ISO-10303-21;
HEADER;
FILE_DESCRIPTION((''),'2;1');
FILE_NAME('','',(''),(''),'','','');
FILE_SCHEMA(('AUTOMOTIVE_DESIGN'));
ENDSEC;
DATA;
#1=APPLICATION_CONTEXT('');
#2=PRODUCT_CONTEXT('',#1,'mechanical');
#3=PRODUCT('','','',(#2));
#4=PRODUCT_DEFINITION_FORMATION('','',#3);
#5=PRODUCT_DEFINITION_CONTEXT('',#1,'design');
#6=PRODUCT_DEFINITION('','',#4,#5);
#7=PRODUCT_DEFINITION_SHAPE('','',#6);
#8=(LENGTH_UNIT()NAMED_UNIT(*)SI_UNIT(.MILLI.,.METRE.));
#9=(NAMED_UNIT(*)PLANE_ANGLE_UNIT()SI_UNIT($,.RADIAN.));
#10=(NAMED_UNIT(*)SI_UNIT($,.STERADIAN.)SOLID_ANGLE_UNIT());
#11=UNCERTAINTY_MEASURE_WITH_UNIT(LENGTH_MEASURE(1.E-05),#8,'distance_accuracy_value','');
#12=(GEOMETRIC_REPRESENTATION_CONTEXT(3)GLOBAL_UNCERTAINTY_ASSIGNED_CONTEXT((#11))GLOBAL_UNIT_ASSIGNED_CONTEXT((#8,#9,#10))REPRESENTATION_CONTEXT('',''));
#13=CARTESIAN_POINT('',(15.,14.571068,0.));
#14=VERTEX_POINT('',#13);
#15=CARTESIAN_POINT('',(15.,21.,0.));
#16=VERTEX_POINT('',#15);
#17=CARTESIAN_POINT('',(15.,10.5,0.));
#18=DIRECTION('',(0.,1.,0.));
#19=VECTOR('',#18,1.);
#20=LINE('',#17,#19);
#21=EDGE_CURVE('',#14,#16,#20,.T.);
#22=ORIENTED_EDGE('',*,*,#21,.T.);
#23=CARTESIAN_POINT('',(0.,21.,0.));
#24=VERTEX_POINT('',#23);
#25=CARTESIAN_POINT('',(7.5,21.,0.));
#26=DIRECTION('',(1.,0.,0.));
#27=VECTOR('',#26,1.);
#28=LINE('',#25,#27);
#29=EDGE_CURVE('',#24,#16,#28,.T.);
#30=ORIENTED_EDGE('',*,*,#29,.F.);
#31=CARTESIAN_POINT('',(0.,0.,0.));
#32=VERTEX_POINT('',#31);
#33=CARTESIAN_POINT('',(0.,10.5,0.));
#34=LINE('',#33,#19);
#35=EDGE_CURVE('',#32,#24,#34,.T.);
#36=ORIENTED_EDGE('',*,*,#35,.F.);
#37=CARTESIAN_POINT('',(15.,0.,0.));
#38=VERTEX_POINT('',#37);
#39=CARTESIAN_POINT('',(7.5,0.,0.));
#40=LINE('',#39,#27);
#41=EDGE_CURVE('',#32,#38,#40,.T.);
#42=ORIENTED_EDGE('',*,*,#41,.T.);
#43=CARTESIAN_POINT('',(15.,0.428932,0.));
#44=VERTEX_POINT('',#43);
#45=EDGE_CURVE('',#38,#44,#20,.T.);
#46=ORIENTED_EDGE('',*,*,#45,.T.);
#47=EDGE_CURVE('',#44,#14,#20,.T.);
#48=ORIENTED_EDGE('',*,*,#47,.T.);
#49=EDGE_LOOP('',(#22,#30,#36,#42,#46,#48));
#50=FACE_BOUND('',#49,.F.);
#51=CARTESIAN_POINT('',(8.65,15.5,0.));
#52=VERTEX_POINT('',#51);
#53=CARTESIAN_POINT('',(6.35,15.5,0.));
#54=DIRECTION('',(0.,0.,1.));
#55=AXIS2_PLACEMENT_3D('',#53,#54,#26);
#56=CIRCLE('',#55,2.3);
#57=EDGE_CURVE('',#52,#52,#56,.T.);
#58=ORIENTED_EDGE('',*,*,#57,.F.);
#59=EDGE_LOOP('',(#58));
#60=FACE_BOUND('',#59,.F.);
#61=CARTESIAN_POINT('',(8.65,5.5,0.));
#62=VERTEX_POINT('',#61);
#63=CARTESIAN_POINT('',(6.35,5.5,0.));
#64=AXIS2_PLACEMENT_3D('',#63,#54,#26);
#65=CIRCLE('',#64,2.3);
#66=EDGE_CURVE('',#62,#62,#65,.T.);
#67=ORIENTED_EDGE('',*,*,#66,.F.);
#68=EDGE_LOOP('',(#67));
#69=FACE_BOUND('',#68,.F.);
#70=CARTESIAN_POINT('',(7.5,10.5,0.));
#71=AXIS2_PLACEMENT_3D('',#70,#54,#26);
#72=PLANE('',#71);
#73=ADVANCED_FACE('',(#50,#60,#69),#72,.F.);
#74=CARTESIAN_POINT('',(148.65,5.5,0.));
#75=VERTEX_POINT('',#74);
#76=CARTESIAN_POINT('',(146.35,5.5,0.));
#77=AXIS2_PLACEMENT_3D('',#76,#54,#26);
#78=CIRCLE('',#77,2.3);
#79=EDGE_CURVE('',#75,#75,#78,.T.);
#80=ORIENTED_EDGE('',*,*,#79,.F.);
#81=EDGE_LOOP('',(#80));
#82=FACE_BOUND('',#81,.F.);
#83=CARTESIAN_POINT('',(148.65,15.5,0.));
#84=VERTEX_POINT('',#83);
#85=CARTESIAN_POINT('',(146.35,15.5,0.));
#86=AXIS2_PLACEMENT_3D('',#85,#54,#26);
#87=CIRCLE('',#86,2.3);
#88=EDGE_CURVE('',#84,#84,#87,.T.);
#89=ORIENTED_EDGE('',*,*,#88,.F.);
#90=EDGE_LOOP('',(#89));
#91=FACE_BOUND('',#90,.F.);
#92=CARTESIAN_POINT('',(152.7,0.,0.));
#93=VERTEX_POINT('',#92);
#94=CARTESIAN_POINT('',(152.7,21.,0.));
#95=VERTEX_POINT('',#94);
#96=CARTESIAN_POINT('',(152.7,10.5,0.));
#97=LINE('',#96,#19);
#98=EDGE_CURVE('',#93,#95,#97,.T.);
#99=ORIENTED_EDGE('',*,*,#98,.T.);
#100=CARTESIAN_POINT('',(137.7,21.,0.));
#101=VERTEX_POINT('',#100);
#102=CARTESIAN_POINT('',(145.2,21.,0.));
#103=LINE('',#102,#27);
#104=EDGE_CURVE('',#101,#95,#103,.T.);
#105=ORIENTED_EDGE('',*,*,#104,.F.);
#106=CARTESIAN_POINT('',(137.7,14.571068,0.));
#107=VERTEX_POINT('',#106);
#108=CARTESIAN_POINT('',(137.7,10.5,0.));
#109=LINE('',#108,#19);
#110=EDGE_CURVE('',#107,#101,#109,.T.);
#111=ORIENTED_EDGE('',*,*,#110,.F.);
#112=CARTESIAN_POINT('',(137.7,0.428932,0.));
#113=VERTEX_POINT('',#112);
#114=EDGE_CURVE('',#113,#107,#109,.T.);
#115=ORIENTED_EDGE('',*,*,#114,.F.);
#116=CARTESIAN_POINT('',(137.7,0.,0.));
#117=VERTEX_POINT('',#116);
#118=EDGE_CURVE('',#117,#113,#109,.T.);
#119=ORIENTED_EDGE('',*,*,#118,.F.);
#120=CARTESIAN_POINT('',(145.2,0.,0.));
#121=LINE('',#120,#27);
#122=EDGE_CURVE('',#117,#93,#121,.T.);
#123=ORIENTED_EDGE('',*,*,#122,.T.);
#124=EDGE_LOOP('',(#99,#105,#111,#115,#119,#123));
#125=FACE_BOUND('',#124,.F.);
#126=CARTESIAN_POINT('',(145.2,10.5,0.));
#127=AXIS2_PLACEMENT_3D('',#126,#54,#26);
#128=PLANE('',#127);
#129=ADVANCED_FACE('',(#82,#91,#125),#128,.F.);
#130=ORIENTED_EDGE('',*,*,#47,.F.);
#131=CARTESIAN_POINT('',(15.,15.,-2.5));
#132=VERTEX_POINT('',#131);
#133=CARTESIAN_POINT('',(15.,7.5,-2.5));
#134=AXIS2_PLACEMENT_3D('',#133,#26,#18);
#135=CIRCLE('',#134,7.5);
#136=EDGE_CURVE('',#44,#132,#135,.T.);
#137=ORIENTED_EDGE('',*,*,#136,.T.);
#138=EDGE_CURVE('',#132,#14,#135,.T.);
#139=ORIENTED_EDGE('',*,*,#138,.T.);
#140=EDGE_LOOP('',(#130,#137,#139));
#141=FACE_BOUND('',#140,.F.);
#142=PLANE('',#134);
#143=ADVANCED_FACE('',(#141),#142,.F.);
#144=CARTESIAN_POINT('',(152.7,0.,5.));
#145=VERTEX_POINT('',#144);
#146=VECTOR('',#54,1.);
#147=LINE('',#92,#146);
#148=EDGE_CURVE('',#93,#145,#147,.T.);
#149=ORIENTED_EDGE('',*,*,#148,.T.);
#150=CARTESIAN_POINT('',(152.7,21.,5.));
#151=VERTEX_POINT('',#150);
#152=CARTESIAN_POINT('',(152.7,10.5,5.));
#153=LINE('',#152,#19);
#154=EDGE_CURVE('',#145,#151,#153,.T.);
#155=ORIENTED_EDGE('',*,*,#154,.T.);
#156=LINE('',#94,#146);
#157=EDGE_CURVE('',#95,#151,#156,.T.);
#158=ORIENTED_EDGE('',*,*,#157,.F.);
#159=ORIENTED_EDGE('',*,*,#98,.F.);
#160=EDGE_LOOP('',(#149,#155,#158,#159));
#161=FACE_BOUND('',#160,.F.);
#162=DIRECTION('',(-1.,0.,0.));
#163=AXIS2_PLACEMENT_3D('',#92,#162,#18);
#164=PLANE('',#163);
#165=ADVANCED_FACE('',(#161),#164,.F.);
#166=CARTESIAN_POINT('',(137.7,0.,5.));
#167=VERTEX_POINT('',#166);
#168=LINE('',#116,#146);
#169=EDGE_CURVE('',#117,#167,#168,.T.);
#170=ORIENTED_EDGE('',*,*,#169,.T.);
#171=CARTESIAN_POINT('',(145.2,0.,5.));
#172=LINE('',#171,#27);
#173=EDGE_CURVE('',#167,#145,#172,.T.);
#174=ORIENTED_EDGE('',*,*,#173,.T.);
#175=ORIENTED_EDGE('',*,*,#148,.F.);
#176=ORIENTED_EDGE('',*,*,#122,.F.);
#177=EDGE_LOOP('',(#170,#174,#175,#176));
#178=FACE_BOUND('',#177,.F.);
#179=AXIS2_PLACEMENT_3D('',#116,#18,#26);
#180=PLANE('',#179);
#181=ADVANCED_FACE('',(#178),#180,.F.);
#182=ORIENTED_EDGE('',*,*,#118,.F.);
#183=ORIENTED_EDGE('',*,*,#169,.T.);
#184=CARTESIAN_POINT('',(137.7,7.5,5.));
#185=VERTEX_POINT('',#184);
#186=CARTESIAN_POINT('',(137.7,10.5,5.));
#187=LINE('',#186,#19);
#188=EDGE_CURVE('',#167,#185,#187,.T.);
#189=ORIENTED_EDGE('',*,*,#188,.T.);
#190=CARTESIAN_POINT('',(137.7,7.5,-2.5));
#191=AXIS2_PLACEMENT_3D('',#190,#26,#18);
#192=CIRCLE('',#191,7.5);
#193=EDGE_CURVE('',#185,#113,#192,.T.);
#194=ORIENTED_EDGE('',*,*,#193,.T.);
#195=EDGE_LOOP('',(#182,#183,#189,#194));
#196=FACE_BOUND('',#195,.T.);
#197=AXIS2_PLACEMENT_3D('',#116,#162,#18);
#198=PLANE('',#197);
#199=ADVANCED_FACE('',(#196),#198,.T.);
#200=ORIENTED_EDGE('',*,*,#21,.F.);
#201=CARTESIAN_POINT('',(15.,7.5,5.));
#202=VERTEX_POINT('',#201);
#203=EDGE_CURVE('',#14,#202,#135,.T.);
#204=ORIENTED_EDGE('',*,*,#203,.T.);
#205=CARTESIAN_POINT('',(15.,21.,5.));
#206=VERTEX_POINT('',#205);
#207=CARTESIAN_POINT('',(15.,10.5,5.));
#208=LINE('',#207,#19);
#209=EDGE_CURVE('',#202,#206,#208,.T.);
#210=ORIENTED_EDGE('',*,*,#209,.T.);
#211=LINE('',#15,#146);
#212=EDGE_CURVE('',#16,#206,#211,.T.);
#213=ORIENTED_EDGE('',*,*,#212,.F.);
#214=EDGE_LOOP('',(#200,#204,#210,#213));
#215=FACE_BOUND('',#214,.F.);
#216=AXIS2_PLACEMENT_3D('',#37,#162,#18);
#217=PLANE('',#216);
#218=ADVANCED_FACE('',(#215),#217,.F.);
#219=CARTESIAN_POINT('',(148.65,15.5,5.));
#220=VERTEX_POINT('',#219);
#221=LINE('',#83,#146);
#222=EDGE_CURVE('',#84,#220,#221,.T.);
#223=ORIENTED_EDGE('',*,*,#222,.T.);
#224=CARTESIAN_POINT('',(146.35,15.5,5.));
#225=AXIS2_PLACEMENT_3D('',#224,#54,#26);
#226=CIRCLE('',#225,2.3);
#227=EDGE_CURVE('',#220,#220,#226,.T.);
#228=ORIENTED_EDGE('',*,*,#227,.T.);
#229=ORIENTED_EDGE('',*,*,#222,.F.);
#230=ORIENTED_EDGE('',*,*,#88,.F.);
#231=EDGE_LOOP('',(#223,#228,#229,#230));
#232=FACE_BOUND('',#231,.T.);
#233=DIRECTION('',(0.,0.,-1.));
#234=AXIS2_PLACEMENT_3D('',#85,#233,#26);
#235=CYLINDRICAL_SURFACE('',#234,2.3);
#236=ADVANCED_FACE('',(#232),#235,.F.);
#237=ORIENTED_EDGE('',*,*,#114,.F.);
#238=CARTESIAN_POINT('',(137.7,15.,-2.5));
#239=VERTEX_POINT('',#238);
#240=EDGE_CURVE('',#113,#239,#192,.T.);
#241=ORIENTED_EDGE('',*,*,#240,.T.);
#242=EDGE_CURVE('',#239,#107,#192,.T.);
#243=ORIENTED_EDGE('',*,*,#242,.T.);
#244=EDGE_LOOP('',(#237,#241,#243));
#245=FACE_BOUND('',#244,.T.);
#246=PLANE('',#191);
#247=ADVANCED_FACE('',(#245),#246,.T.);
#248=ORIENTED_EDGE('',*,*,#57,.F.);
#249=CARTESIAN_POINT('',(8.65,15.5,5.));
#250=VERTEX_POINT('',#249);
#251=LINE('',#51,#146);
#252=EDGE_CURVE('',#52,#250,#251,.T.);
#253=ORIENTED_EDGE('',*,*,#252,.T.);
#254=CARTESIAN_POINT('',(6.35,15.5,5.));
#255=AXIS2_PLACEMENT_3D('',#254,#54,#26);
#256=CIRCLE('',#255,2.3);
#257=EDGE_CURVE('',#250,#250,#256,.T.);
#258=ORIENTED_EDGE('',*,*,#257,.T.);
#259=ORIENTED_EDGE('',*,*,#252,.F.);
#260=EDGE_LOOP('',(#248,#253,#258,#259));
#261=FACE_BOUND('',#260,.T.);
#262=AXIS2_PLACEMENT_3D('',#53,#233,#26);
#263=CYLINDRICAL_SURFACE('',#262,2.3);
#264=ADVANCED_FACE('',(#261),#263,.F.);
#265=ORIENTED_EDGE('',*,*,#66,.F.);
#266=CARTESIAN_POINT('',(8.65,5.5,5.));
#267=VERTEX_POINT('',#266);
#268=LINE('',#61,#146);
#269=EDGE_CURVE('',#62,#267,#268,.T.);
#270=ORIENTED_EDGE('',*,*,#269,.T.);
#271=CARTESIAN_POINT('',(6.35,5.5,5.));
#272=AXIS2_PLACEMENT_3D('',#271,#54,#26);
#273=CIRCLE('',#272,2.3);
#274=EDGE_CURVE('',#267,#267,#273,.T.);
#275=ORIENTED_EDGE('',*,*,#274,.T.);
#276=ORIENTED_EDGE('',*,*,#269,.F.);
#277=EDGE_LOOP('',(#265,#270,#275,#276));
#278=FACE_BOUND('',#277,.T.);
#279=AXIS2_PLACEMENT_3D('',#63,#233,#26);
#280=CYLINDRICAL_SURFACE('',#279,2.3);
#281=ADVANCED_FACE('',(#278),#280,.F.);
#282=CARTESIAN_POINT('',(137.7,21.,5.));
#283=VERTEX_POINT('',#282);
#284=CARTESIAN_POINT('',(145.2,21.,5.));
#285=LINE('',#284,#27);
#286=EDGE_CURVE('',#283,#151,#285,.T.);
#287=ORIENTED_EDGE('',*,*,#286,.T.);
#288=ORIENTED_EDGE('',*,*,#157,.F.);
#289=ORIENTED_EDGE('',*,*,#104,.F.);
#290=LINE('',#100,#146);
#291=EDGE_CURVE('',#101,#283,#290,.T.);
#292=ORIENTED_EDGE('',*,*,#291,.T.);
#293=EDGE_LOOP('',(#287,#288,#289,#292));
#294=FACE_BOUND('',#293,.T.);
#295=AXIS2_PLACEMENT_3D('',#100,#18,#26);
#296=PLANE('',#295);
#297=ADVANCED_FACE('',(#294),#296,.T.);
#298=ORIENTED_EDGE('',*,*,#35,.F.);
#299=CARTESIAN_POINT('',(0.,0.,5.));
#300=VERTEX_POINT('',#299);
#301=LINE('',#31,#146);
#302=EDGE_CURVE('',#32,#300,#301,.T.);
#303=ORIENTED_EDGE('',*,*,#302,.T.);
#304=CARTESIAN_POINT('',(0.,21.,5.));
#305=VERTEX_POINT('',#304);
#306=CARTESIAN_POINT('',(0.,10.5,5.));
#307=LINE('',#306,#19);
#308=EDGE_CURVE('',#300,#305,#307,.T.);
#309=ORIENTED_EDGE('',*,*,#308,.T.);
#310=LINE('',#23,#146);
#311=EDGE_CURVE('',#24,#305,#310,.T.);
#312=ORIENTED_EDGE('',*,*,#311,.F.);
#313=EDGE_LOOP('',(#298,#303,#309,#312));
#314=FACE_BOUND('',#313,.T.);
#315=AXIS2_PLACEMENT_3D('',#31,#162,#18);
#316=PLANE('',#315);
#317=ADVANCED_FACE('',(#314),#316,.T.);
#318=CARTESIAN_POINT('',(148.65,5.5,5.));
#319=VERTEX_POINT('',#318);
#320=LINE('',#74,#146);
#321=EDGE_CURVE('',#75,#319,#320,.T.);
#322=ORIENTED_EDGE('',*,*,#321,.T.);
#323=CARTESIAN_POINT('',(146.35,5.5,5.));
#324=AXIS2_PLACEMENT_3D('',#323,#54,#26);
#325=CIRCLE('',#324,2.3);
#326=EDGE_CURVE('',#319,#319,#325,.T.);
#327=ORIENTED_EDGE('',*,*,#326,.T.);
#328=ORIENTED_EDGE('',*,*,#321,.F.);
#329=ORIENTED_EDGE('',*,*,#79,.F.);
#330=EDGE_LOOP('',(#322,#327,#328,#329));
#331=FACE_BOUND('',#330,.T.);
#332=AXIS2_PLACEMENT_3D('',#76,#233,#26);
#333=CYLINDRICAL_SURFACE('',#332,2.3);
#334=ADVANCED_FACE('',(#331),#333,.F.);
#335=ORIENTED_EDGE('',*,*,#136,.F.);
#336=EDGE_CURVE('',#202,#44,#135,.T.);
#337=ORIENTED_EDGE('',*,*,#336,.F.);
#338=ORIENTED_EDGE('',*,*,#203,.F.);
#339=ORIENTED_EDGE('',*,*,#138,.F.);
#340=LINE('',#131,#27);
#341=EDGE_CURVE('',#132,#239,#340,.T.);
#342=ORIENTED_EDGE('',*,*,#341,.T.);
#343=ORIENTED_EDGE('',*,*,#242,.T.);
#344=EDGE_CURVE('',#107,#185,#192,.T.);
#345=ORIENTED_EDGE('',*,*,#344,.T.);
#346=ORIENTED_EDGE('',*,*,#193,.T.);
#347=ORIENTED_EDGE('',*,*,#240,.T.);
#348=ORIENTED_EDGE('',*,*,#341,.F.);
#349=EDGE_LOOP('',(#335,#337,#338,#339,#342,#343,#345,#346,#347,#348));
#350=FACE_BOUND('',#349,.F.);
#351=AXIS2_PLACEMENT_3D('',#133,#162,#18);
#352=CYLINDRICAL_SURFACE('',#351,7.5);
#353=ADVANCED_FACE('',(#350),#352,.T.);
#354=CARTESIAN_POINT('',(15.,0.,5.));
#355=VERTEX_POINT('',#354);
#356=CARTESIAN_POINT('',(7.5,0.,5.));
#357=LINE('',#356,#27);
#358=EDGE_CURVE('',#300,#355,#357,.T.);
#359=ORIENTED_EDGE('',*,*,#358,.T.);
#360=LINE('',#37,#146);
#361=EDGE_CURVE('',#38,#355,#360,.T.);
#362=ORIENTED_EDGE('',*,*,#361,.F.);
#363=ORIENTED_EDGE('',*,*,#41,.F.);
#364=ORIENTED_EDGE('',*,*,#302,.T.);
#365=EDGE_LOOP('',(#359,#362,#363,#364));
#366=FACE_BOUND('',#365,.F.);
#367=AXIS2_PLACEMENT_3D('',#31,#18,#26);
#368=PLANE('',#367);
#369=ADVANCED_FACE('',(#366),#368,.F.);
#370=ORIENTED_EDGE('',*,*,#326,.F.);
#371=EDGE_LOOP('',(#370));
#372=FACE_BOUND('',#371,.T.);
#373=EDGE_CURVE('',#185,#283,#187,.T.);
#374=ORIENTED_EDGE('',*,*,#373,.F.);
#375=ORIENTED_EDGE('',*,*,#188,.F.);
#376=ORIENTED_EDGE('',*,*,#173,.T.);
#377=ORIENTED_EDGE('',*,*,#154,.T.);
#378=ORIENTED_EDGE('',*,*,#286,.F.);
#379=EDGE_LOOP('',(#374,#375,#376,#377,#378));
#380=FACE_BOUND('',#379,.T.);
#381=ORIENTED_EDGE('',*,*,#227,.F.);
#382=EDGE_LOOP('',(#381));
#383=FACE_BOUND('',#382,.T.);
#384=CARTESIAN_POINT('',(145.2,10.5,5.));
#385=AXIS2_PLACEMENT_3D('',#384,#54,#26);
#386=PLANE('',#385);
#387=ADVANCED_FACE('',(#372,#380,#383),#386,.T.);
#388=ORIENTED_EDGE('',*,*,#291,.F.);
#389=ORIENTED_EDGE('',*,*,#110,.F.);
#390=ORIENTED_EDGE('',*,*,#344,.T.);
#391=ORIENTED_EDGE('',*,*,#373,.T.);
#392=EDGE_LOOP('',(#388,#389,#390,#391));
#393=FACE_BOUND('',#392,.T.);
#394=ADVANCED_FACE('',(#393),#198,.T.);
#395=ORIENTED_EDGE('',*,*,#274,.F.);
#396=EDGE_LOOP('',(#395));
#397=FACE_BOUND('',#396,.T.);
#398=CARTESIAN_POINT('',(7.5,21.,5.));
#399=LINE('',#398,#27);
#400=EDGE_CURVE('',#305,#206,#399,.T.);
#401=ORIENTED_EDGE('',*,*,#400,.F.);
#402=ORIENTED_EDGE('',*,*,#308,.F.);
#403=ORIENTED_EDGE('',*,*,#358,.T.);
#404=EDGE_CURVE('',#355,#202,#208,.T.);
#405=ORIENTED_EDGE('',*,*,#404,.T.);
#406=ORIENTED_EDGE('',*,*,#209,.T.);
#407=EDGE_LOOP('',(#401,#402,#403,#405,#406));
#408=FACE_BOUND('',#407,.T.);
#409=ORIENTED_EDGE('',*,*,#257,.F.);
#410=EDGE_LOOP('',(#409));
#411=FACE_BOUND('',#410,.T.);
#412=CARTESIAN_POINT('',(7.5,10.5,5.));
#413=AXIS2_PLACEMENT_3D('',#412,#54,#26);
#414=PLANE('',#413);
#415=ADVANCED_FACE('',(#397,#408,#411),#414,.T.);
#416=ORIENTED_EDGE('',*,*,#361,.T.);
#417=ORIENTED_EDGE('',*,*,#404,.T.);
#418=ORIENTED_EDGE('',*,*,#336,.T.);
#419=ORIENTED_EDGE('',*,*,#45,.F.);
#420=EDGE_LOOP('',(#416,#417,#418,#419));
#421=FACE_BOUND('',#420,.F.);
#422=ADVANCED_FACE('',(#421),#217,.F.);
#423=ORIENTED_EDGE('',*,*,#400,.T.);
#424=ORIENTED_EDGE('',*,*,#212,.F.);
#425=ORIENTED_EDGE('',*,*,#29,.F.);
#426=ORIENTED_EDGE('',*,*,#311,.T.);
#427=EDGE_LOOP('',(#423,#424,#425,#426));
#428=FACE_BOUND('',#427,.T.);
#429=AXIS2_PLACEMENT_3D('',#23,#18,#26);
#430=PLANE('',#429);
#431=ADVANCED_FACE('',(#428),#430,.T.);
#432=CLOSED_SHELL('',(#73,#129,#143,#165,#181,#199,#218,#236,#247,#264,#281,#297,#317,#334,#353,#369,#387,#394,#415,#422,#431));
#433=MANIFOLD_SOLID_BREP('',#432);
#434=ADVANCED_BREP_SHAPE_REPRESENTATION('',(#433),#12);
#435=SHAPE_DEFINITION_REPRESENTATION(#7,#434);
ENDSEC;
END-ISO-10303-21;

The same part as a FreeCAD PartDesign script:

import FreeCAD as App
import Part
import Sketcher
from FreeCAD import Vector

doc = App.newDocument("Part")
params = doc.addObject("Spreadsheet::Sheet", "Params")
for row, (alias, value) in enumerate([
    ("sketch1_diameter", "4.6 mm"),
    ("sketch1_width", "15 mm"),
    ("sketch1_height", "21 mm"),
    ("pad1_length", "5 mm"),
    ("sketch2_diameter", "15 mm"),
    ("pad2_length", "122.7 mm"),
    ("sketch3_diameter", "4.6 mm"),
    ("sketch3_width", "15 mm"),
    ("sketch3_height", "21 mm"),
    ("pad3_length", "5 mm"),
], start=1):
    params.set(f"A{row}", alias)
    params.set(f"B{row}", "=" + value)
    params.setAlias(f"B{row}", alias)

body = doc.addObject("PartDesign::Body", "Body")

sketch1 = doc.addObject("Sketcher::SketchObject", "Sketch")
body.addObject(sketch1)
sketch1.AttachmentSupport = (doc.XY_Plane, [""])
sketch1.MapMode = "FlatFace"
sketch1.addGeometry([
    Part.LineSegment(Vector(0, 21, 0), Vector(0, 0, 0)),
    Part.LineSegment(Vector(0, 0, 0), Vector(15, 0, 0)),
    Part.LineSegment(Vector(15, 0, 0), Vector(15, 21, 0)),
    Part.LineSegment(Vector(15, 21, 0), Vector(0, 21, 0)),
    Part.Circle(Vector(6.35, 5.5, 0), Vector(0, 0, 1), 2.3),
    Part.Circle(Vector(6.35, 15.5, 0), Vector(0, 0, 1), 2.3),
], False)
sketch1.addConstraint([
    Sketcher.Constraint("Coincident", 0, 2, 1, 1),
    Sketcher.Constraint("Coincident", 1, 2, 2, 1),
    Sketcher.Constraint("Coincident", 2, 2, 3, 1),
    Sketcher.Constraint("Coincident", 3, 2, 0, 1),
    Sketcher.Constraint("Vertical", 0),
    Sketcher.Constraint("Horizontal", 1),
    Sketcher.Constraint("Vertical", 2),
    Sketcher.Constraint("Horizontal", 3),
    Sketcher.Constraint("Coincident", 0, 2, -1, 1),
    Sketcher.Constraint("Equal", 4, 5),
    Sketcher.Constraint("Vertical", 4, 3, 5, 3),
    Sketcher.Constraint("Diameter", 4, 4.6),
    Sketcher.Constraint("DistanceX", 1, 1, 1, 2, 15.0),
    Sketcher.Constraint("DistanceY", 0, 2, 0, 1, 21.0),
    Sketcher.Constraint("DistanceY", 4, 3, 5, 3, 10.0),
    Sketcher.Constraint("DistanceY", -1, 1, 4, 3, 5.5),
    Sketcher.Constraint("DistanceX", -1, 1, 4, 3, 6.35),
])
sketch1.setExpression("Constraints[11]", "Params.sketch1_diameter")
sketch1.setExpression("Constraints[12]", "Params.sketch1_width")
sketch1.setExpression("Constraints[13]", "Params.sketch1_height")
pad1 = doc.addObject("PartDesign::Pad", "Pad")
body.addObject(pad1)
pad1.Profile = sketch1
pad1.setExpression("Length", "Params.pad1_length")

sketch2 = doc.addObject("Sketcher::SketchObject", "Sketch001")
body.addObject(sketch2)
sketch2.AttachmentSupport = (doc.YZ_Plane, [""])
sketch2.MapMode = "FlatFace"
sketch2.AttachmentOffset = App.Placement(Vector(0, 0, 15), App.Rotation())
sketch2.addGeometry(Part.Circle(Vector(7.5, -2.5, 0), Vector(0, 0, 1), 7.5), False)
sketch2.addConstraint([
    Sketcher.Constraint("Diameter", 0, 15.0),
    Sketcher.Constraint("DistanceX", -1, 1, 0, 3, 7.5),
    Sketcher.Constraint("DistanceY", 0, 3, -1, 1, 2.5),
])
sketch2.setExpression("Constraints[0]", "Params.sketch2_diameter")
pad2 = doc.addObject("PartDesign::Pad", "Pad001")
body.addObject(pad2)
pad2.Profile = sketch2
pad2.setExpression("Length", "Params.pad2_length")

sketch3 = doc.addObject("Sketcher::SketchObject", "Sketch002")
body.addObject(sketch3)
sketch3.AttachmentSupport = (doc.XY_Plane, [""])
sketch3.MapMode = "FlatFace"
sketch3.addGeometry([
    Part.LineSegment(Vector(137.7, 21, 0), Vector(137.7, 0, 0)),
    Part.LineSegment(Vector(137.7, 0, 0), Vector(152.7, 0, 0)),
    Part.LineSegment(Vector(152.7, 0, 0), Vector(152.7, 21, 0)),
    Part.LineSegment(Vector(152.7, 21, 0), Vector(137.7, 21, 0)),
    Part.Circle(Vector(146.35, 5.5, 0), Vector(0, 0, 1), 2.3),
    Part.Circle(Vector(146.35, 15.5, 0), Vector(0, 0, 1), 2.3),
], False)
sketch3.addConstraint([
    Sketcher.Constraint("Coincident", 0, 2, 1, 1),
    Sketcher.Constraint("Coincident", 1, 2, 2, 1),
    Sketcher.Constraint("Coincident", 2, 2, 3, 1),
    Sketcher.Constraint("Coincident", 3, 2, 0, 1),
    Sketcher.Constraint("Vertical", 0),
    Sketcher.Constraint("Horizontal", 1),
    Sketcher.Constraint("Vertical", 2),
    Sketcher.Constraint("Horizontal", 3),
    Sketcher.Constraint("Equal", 4, 5),
    Sketcher.Constraint("PointOnObject", 0, 2, -1),
    Sketcher.Constraint("Vertical", 4, 3, 5, 3),
    Sketcher.Constraint("Diameter", 4, 4.6),
    Sketcher.Constraint("DistanceX", 1, 1, 1, 2, 15.0),
    Sketcher.Constraint("DistanceY", 0, 2, 0, 1, 21.0),
    Sketcher.Constraint("DistanceY", 4, 3, 5, 3, 10.0),
    Sketcher.Constraint("DistanceY", -1, 1, 4, 3, 5.5),
    Sketcher.Constraint("DistanceX", -1, 1, 0, 2, 137.7),
    Sketcher.Constraint("DistanceX", -1, 1, 4, 3, 146.35),
])
sketch3.setExpression("Constraints[11]", "Params.sketch3_diameter")
sketch3.setExpression("Constraints[12]", "Params.sketch3_width")
sketch3.setExpression("Constraints[13]", "Params.sketch3_height")
pad3 = doc.addObject("PartDesign::Pad", "Pad002")
body.addObject(pad3)
pad3.Profile = sketch3
pad3.setExpression("Length", "Params.pad3_length")

doc.recompute()
